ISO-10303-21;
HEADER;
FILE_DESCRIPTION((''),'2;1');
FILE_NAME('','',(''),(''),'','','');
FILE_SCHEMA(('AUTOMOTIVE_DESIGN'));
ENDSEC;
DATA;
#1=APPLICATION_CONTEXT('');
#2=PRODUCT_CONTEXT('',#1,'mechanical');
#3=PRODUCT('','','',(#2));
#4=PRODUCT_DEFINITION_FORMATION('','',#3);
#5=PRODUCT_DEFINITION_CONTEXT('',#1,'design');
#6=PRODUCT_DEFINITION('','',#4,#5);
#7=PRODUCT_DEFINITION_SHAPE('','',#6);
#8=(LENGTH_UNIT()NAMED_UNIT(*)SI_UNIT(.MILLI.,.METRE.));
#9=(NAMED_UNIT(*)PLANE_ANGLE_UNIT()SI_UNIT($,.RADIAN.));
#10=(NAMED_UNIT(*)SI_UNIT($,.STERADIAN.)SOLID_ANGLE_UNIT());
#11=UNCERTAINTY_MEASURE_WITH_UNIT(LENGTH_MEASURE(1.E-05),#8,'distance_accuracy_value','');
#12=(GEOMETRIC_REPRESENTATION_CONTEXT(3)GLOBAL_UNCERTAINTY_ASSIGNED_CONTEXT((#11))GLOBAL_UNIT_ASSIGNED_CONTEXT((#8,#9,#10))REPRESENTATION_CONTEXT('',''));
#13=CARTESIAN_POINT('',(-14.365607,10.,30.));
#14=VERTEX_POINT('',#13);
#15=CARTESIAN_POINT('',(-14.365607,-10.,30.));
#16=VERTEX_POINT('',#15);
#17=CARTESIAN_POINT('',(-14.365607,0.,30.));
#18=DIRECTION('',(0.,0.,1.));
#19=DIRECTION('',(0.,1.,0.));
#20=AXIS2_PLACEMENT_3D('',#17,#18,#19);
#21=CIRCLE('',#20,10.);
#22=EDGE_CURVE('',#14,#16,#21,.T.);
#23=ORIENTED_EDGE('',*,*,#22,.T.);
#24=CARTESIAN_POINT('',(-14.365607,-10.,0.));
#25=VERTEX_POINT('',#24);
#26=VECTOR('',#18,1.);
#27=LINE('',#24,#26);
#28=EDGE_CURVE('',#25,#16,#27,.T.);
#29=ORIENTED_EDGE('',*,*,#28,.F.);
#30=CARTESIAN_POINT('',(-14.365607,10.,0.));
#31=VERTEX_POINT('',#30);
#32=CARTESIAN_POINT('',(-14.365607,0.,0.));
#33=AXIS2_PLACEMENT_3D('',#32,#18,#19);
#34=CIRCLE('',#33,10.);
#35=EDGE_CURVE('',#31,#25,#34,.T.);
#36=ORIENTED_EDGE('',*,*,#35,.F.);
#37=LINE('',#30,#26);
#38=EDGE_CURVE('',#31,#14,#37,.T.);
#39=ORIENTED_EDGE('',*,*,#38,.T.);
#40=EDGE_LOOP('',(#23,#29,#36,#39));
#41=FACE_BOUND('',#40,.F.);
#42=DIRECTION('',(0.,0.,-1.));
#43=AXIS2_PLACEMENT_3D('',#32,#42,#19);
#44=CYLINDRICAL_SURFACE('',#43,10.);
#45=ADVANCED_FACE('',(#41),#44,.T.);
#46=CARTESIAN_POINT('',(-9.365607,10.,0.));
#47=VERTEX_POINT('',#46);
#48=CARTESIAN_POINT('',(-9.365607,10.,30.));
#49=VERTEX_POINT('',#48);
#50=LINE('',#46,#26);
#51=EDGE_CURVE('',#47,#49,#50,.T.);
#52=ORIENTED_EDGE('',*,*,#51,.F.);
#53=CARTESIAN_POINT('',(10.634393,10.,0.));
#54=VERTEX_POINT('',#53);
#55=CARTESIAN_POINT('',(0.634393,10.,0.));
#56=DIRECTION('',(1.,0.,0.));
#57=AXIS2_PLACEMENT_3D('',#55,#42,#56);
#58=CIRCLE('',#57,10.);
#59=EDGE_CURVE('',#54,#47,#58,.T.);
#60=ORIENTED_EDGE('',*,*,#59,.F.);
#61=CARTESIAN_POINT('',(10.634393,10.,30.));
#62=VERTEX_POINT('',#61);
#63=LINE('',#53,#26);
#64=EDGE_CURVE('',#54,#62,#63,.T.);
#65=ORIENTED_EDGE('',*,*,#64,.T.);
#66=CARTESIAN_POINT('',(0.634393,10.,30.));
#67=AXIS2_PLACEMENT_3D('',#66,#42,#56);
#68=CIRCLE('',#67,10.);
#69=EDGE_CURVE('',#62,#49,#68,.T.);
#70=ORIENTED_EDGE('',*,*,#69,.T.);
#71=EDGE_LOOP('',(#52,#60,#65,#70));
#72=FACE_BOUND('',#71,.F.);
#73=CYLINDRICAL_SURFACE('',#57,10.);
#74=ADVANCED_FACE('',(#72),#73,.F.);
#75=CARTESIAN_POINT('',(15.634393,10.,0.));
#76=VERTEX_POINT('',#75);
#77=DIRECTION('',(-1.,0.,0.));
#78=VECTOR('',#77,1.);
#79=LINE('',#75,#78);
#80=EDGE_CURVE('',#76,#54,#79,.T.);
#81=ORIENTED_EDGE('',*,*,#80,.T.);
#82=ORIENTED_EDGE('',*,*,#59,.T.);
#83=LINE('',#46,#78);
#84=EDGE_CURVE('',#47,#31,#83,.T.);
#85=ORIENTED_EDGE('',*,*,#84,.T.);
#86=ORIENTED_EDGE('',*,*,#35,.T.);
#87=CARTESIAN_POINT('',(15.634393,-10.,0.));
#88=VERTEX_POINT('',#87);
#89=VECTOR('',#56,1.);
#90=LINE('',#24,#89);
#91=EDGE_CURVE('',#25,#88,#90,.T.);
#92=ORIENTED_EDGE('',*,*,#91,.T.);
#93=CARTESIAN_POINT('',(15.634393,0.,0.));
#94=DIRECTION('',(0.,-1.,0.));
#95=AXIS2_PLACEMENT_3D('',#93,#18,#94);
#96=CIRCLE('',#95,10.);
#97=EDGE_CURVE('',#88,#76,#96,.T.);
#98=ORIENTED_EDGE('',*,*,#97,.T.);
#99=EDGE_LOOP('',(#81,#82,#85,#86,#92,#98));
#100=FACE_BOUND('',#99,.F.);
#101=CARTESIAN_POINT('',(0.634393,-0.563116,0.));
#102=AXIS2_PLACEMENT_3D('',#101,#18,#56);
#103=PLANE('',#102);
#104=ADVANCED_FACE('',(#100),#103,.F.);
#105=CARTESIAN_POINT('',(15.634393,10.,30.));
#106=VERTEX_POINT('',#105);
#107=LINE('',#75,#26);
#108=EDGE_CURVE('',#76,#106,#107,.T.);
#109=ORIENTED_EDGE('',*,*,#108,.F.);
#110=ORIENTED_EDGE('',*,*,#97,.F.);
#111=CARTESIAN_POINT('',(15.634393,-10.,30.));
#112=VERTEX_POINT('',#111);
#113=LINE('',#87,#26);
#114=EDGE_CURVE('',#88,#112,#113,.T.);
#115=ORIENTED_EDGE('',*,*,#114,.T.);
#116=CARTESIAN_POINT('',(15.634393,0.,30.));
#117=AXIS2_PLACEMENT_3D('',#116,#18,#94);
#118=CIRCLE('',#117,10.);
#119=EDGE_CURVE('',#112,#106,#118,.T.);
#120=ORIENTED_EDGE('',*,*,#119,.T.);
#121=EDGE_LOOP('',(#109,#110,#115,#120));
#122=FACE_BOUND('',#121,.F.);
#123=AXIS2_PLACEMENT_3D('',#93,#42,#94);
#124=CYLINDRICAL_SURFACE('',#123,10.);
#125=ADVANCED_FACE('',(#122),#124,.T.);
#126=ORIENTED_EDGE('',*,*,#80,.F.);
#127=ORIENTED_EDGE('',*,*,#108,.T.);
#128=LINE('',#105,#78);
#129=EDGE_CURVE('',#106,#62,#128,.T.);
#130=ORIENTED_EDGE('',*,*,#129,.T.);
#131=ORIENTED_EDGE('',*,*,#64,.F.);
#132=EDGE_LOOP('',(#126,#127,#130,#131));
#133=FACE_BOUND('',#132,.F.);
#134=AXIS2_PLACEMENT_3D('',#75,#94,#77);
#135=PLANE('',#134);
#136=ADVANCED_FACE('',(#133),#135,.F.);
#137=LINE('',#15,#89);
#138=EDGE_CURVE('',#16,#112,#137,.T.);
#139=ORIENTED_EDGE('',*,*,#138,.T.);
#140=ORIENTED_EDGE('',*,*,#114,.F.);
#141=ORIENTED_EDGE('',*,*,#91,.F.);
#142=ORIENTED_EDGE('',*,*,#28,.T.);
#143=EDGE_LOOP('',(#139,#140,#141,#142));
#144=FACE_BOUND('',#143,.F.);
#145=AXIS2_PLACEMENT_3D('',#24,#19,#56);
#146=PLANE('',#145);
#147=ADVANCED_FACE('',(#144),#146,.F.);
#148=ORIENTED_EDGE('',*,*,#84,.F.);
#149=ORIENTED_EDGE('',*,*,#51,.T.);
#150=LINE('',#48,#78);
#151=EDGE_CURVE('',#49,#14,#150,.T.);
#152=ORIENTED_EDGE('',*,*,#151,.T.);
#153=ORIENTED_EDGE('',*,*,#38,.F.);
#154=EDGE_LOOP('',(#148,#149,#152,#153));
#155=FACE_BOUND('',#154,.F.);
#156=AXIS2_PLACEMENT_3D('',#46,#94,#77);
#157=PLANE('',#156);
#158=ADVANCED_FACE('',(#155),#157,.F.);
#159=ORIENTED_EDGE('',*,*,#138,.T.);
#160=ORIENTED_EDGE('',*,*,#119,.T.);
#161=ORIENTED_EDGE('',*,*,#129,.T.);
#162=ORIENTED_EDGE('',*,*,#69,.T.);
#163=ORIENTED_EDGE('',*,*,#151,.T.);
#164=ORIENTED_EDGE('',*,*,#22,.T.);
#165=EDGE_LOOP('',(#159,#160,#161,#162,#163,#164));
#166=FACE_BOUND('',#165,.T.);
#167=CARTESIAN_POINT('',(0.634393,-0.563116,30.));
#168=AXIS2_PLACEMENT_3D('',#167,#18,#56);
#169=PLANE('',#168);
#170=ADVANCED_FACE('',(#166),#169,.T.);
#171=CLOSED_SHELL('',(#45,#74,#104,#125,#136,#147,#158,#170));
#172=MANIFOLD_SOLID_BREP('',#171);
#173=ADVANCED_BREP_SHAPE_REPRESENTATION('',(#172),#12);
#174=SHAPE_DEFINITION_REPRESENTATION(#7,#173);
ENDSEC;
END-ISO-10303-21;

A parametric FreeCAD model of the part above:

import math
import FreeCAD as App
import Part
import Sketcher

doc = App.newDocument("Part")
body = doc.addObject("PartDesign::Body", "Body")

sketch1 = body.newObject("Sketcher::SketchObject", "Sketch")
sketch1.AttachmentSupport = (doc.getObject("XY_Plane"), [""])
sketch1.MapMode = "FlatFace"
sketch1.addGeometry(Part.ArcOfCircle(Part.Circle(App.Vector(0.634393, 10, 0), App.Vector(0, 0, 1), 10), math.radians(180), math.radians(360)), False)
sketch1.addGeometry(Part.LineSegment(App.Vector(-9.365607, 10, 0), App.Vector(-14.365607, 10, 0)), False)
sketch1.addGeometry(Part.ArcOfCircle(Part.Circle(App.Vector(-14.365607, 0, 0), App.Vector(0, 0, 1), 10), math.radians(90), math.radians(270)), False)
sketch1.addGeometry(Part.LineSegment(App.Vector(-14.365607, -10, 0), App.Vector(15.634393, -10, 0)), False)
sketch1.addGeometry(Part.ArcOfCircle(Part.Circle(App.Vector(15.634393, 0, 0), App.Vector(0, 0, 1), 10), math.radians(-90), math.radians(90)), False)
sketch1.addGeometry(Part.LineSegment(App.Vector(15.634393, 10, 0), App.Vector(10.634393, 10, 0)), False)
sketch1.addConstraint(Sketcher.Constraint("Coincident", 0, 1, 1, 1))
sketch1.addConstraint(Sketcher.Constraint("Tangent", 1, 2, 2, 1))
sketch1.addConstraint(Sketcher.Constraint("Tangent", 2, 2, 3, 1))
sketch1.addConstraint(Sketcher.Constraint("Tangent", 3, 2, 4, 1))
sketch1.addConstraint(Sketcher.Constraint("Tangent", 4, 2, 5, 1))
sketch1.addConstraint(Sketcher.Constraint("Coincident", 5, 2, 0, 2))
sketch1.addConstraint(Sketcher.Constraint("Horizontal", 1))
sketch1.addConstraint(Sketcher.Constraint("Horizontal", 3))
sketch1.addConstraint(Sketcher.Constraint("Horizontal", 5))
sketch1.addConstraint(Sketcher.Constraint("Equal", 0, 2))
sketch1.addConstraint(Sketcher.Constraint("Equal", 2, 4))
sketch1.addConstraint(Sketcher.Constraint("PointOnObject", 2, 3, -1))
sketch1.addConstraint(Sketcher.Constraint("Equal", 1, 5))
sketch1.addConstraint(Sketcher.Constraint("Radius", 0, 10.0))
sketch1.addConstraint(Sketcher.Constraint("DistanceX", 1, 2, 1, 1, 5.0))
sketch1.addConstraint(Sketcher.Constraint("DistanceY", -1, 1, 0, 3, 10.0))
sketch1.addConstraint(Sketcher.Constraint("DistanceX", -1, 1, 0, 3, 0.634393))
pad1 = body.newObject("PartDesign::Pad", "Pad")
pad1.Profile = sketch1
pad1.Length = 30

doc.recompute()
